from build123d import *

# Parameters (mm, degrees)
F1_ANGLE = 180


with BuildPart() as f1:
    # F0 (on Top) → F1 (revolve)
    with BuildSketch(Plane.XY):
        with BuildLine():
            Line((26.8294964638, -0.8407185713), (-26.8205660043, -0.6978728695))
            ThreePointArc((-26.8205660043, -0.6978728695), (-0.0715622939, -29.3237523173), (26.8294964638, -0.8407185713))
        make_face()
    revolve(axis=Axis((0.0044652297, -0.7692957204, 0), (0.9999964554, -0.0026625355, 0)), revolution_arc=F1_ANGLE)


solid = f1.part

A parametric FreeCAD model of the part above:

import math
import FreeCAD as App
import Part
import Sketcher
Q = App.Units.Quantity

doc = App.newDocument("Part")
params = doc.addObject("Spreadsheet::Sheet", "Params")
for row, (alias, value) in enumerate([
    ("revolution_angle", "180 deg"),
], start=1):
    params.set(f"A{row}", alias)
    params.set(f"B{row}", "=" + value)
    params.setAlias(f"B{row}", alias)

body = doc.addObject("PartDesign::Body", "Body")

sketch1 = body.newObject("Sketcher::SketchObject", "Sketch")
sketch1.AttachmentSupport = (doc.getObject("XY_Plane"), [""])
sketch1.MapMode = "FlatFace"
sketch1.addGeometry([
    Part.LineSegment(App.Vector(27, -1, 0), App.Vector(-27, -1, 0)),
    Part.ArcOfCircle(Part.Circle(App.Vector(0, -2, 0), App.Vector(0, 0, 1), 27), math.radians(176), math.radians(363)),
], False)
sketch1.addGeometry(Part.LineSegment(App.Vector(-27, -1, 0), App.Vector(27, -1, 0)), True)
sketch1.addConstraint([
    Sketcher.Constraint("Coincident", 0, 1, 1, 2),
    Sketcher.Constraint("Coincident", 1, 1, 0, 2),
    Sketcher.Constraint("Coincident", 2, 1, 1, 1),
    Sketcher.Constraint("Coincident", 2, 2, 0, 1),
    Sketcher.Constraint("PointOnObject", 1, 3, -2),
    Sketcher.Constraint("Radius", 1, Q("26.877499 mm")),
    Sketcher.Constraint("DistanceY", 1, 3, -1, 1, Q("2.446349 mm")),
    Sketcher.Constraint("DistanceY", 0, 1, -1, 1, Q("0.840719 mm")),
    Sketcher.Constraint("Distance", 0, Q("53.650253 mm")),
])
revolution = body.newObject("PartDesign::Revolution", "Revolution")
revolution.Profile = sketch1
revolution.ReferenceAxis = (sketch1, ["Axis0"])
revolution.setExpression("Angle", "Params.revolution_angle")

doc.recompute()
